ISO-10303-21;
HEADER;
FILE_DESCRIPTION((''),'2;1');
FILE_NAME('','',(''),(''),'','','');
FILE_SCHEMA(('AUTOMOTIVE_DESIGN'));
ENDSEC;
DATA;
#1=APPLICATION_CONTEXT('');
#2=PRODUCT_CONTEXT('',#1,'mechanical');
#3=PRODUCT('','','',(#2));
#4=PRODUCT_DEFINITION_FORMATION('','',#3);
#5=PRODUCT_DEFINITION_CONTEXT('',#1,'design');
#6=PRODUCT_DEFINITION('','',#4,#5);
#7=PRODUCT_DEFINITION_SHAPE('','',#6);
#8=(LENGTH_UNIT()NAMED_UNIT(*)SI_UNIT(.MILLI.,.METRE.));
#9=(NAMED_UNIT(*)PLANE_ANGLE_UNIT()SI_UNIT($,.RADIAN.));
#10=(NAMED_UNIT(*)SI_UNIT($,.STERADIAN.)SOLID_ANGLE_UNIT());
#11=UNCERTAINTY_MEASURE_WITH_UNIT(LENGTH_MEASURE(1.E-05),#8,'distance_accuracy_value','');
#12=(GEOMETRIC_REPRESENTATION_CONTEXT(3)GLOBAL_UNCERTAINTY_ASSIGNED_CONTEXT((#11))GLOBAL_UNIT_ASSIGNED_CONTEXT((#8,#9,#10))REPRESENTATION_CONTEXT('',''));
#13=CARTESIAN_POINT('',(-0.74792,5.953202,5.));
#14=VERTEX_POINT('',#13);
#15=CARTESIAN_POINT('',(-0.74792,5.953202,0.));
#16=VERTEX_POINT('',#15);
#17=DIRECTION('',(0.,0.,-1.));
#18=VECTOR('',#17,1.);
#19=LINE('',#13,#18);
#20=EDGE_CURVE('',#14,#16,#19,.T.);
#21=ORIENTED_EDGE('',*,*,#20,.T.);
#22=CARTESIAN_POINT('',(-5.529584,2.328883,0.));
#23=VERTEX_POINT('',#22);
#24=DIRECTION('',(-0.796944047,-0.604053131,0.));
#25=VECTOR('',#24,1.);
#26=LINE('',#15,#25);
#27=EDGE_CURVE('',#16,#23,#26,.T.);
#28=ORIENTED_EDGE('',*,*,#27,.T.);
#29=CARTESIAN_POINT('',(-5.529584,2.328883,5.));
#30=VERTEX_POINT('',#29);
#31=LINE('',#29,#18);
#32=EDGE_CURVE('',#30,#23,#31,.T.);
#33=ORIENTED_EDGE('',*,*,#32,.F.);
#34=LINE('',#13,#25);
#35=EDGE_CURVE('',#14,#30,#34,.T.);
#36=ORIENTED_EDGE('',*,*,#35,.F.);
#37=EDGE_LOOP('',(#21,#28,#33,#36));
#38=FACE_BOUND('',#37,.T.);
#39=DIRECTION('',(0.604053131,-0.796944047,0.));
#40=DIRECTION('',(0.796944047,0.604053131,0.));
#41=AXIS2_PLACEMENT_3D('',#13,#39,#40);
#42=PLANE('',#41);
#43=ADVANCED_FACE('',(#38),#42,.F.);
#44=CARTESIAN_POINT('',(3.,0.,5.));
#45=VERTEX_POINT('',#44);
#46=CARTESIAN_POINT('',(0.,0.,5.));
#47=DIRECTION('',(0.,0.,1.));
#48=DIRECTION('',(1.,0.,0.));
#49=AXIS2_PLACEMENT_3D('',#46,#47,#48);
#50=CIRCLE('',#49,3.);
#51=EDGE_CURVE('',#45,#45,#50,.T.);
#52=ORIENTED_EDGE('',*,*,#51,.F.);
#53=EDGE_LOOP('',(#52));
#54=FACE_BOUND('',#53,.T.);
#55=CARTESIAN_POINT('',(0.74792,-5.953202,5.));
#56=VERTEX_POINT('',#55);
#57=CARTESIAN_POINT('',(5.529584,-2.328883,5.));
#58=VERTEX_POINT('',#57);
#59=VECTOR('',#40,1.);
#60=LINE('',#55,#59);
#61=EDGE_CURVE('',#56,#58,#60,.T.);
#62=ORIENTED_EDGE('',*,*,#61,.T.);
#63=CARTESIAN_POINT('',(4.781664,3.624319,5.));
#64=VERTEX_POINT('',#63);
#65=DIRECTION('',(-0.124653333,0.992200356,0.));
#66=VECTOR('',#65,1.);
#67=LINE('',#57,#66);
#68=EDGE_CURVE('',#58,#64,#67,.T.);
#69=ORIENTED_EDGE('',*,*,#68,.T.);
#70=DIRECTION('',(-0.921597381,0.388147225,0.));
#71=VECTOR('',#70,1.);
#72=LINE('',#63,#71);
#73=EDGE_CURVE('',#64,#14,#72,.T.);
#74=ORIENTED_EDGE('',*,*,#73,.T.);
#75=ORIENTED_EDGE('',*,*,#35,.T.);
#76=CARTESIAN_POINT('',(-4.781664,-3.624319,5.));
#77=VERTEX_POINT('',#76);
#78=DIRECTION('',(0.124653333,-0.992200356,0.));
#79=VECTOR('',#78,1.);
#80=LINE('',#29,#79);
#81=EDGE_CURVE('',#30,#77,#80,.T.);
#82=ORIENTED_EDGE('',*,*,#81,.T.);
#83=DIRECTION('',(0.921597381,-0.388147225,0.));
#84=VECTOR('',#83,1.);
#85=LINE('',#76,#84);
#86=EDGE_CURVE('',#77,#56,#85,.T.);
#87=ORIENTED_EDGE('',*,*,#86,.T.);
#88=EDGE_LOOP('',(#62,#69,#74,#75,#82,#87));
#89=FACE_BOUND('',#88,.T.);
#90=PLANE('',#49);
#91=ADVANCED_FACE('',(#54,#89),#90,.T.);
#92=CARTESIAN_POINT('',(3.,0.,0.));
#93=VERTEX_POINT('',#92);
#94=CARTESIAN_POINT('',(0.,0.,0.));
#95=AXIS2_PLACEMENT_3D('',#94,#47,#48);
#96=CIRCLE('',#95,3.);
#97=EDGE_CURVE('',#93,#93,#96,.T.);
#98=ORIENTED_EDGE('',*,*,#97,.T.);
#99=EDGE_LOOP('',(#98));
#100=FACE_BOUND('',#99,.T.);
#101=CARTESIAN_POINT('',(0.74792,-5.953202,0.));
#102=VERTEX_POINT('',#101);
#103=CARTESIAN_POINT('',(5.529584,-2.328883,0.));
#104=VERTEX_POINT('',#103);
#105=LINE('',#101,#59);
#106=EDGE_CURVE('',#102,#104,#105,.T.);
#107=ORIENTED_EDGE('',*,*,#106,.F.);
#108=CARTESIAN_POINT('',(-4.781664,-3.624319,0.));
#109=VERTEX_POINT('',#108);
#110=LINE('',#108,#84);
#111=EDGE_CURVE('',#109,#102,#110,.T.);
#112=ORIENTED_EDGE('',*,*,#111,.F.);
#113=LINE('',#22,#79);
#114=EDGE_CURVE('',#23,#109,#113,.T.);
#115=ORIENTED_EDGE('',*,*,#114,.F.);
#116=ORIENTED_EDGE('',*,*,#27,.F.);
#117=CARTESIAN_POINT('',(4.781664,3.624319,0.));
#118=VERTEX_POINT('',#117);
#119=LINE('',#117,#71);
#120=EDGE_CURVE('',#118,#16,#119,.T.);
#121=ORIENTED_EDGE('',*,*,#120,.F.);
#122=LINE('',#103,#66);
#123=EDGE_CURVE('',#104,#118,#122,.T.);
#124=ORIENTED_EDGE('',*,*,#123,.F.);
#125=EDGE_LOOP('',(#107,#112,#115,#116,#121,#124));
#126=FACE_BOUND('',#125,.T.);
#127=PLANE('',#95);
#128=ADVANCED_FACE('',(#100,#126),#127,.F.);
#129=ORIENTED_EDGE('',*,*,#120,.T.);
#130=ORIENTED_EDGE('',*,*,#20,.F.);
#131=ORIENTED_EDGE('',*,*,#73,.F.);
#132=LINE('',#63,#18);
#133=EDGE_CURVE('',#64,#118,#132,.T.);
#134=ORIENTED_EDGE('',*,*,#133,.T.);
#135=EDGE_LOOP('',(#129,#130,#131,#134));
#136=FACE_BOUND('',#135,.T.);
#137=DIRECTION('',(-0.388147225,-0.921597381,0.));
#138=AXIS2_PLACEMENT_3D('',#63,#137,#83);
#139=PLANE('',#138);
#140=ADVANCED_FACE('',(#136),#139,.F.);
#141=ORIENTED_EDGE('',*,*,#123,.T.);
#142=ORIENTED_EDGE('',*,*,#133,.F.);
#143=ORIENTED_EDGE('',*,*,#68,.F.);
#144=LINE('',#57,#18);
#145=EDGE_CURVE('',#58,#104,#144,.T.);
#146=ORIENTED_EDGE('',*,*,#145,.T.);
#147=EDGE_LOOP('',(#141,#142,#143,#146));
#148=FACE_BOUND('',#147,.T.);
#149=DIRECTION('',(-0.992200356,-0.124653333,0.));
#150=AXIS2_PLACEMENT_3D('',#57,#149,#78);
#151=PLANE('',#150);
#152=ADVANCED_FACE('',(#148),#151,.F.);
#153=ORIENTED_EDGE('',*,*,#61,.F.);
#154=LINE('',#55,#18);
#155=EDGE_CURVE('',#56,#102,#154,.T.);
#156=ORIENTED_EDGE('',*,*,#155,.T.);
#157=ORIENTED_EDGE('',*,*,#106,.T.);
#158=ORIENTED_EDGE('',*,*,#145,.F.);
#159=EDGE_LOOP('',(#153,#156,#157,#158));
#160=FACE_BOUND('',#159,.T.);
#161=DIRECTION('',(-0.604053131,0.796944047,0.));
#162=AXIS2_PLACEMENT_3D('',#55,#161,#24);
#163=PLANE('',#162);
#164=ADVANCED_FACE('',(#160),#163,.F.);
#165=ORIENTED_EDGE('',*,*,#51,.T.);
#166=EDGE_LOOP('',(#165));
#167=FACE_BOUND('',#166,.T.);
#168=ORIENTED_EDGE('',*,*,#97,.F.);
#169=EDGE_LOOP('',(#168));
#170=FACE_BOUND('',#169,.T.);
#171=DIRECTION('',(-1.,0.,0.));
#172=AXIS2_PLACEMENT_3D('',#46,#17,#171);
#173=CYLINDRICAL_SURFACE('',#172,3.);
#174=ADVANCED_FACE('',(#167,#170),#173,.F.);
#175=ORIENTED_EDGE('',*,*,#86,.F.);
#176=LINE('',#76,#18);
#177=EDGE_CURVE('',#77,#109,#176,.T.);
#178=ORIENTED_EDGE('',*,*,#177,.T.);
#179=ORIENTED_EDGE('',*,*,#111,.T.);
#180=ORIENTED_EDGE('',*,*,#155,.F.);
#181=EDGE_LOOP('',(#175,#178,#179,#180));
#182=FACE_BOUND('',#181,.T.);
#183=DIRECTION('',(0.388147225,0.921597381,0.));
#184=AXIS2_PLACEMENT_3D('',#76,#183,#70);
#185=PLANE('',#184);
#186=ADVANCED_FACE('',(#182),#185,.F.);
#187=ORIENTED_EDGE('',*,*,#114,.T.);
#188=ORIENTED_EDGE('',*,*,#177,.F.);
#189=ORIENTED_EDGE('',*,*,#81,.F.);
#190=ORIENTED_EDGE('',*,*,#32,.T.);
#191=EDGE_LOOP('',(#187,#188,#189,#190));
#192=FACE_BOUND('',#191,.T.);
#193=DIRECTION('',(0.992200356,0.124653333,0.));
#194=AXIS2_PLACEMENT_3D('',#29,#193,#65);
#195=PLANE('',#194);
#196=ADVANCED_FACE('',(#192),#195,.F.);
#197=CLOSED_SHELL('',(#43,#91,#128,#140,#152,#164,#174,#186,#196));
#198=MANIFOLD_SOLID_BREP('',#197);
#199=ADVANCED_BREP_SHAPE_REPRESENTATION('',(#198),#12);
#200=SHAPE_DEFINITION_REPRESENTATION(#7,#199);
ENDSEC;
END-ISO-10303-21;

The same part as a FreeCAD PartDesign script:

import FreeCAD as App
import Part
import Sketcher

V = App.Vector
Q = App.Units.Quantity


def add_polygon(sketch, points):
    """Adds a closed chain of lines whose ends are joined by coincident constraints."""
    first, n = sketch.GeometryCount, len(points)
    for a, b in zip(points, points[1:] + points[:1]):
        sketch.addGeometry(Part.LineSegment(App.Vector(*a, 0), App.Vector(*b, 0)), False)
    for i in range(n):
        sketch.addConstraint(Sketcher.Constraint("Coincident", first + i, 2, first + (i + 1) % n, 1))

doc = App.newDocument("Part")
body = doc.addObject("PartDesign::Body", "Body")

# Sketch on XY plane
sketch1 = doc.addObject("Sketcher::SketchObject", "Sketch")
body.addObject(sketch1)
sketch1.AttachmentSupport = (doc.XY_Plane, [""])
sketch1.MapMode = "FlatFace"
add_polygon(sketch1, [(4.8, 3.6), (-0.7, 6), (-5.5, 2.3), (-4.8, -3.6), (0.7, -6), (5.5, -2.3)])  # lines 0-5
sketch1.addGeometry(Part.Circle(V(0, 0, 0), V(0, 0, 1), 3), False)  # 6
sketch1.addConstraint([
    Sketcher.Constraint("Coincident", 6, 3, -1, 1),
    Sketcher.Constraint("Symmetric", 0, 2, 3, 2, -1, 1),
    Sketcher.Constraint("Symmetric", 1, 2, 4, 2, -1, 1),
    Sketcher.Constraint("Symmetric", 2, 2, 5, 2, -1, 1),
    Sketcher.Constraint("Equal", 0, 1),
    Sketcher.Constraint("Equal", 1, 2),
    Sketcher.Constraint("Diameter", 6, Q("6 mm")),
    Sketcher.Constraint("Distance", 0, Q("6 mm")),
    Sketcher.Constraint("DistanceX", 0, 2, -1, 1, Q("0.74792 mm")),
    Sketcher.Constraint("DistanceY", 2, 2, -1, 1, Q("3.624319 mm")),
    Sketcher.Constraint("DistanceY", 1, 2, 0, 2, Q("3.624319 mm")),
])
pad1 = doc.addObject("PartDesign::Pad", "Pad")
body.addObject(pad1)
pad1.Profile = sketch1
pad1.Length = 5

doc.recompute()
